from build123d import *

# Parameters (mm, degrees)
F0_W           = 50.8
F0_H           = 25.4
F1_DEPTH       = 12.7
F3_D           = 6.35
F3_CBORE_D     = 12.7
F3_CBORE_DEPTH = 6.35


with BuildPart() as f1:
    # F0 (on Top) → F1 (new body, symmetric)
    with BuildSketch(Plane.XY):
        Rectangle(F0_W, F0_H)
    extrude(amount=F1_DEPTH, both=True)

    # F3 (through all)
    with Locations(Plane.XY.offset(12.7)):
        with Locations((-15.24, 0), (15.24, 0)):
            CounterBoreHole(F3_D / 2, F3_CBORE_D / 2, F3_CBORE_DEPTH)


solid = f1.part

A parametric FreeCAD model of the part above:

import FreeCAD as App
import Part
import Sketcher

V = App.Vector
Q = App.Units.Quantity

doc = App.newDocument("Part")
params = doc.addObject("Spreadsheet::Sheet", "Params")
for row, (alias, value) in enumerate([
    ("sketch1_width", "2 in"),
    ("sketch1_height", "1 in"),
    ("pad1_length", "1 in"),
    ("sketch2_diameter", "0.25 in"),
    ("hole_diameter", "0.25 in"),
    ("hole_cbore_diameter", "0.5 in"),
    ("hole_cbore_depth", "0.25 in"),
], start=1):
    params.set(f"A{row}", alias)
    params.set(f"B{row}", "=" + value)
    params.setAlias(f"B{row}", alias)

body = doc.addObject("PartDesign::Body", "Body")

# Sketch on XY plane
sketch1 = body.newObject("Sketcher::SketchObject", "Sketch")
sketch1.AttachmentSupport = (doc.getObject("XY_Plane"), [""])
sketch1.MapMode = "FlatFace"
sketch1.addGeometry(Part.LineSegment(V(-25.4, 12.7, 0), V(-25.4, -12.7, 0)), False)
sketch1.addGeometry(Part.LineSegment(V(-25.4, -12.7, 0), V(25.4, -12.7, 0)), False)
sketch1.addGeometry(Part.LineSegment(V(25.4, -12.7, 0), V(25.4, 12.7, 0)), False)
sketch1.addGeometry(Part.LineSegment(V(25.4, 12.7, 0), V(-25.4, 12.7, 0)), False)
sketch1.addConstraint(Sketcher.Constraint("Coincident", 0, 2, 1, 1))
sketch1.addConstraint(Sketcher.Constraint("Coincident", 1, 2, 2, 1))
sketch1.addConstraint(Sketcher.Constraint("Coincident", 2, 2, 3, 1))
sketch1.addConstraint(Sketcher.Constraint("Coincident", 3, 2, 0, 1))
sketch1.addConstraint(Sketcher.Constraint("Vertical", 0))
sketch1.addConstraint(Sketcher.Constraint("Horizontal", 1))
sketch1.addConstraint(Sketcher.Constraint("Vertical", 2))
sketch1.addConstraint(Sketcher.Constraint("Horizontal", 3))
sketch1.addConstraint(Sketcher.Constraint("Symmetric", 0, 2, 2, 2, -1, 1))
sketch1.addConstraint(Sketcher.Constraint("DistanceX", 1, 1, 1, 2, Q("2 in")))
sketch1.addConstraint(Sketcher.Constraint("DistanceY", 0, 2, 0, 1, Q("1 in")))
sketch1.setExpression("Constraints[9]", "Params.sketch1_width")
sketch1.setExpression("Constraints[10]", "Params.sketch1_height")
pad1 = body.newObject("PartDesign::Pad", "Pad")
pad1.Profile = sketch1
pad1.setExpression("Length", "Params.pad1_length")
pad1.Midplane = True

# Sketch on XY plane
sketch2 = body.newObject("Sketcher::SketchObject", "Sketch001")
sketch2.AttachmentSupport = (doc.getObject("XY_Plane"), [""])
sketch2.MapMode = "FlatFace"
sketch2.AttachmentOffset = App.Placement(V(0, 0, 0.5 * 25.4), App.Rotation())
sketch2.addGeometry(Part.Circle(V(-15.24, 0, 0), V(0, 0, 1), 3.175), False)
sketch2.addGeometry(Part.Circle(V(15.24, 0, 0), V(0, 0, 1), 3.175), False)
sketch2.addConstraint(Sketcher.Constraint("Equal", 0, 1))
sketch2.addConstraint(Sketcher.Constraint("Symmetric", 0, 3, 1, 3, -1, 1))
sketch2.addConstraint(Sketcher.Constraint("PointOnObject", 0, 3, -1))
sketch2.addConstraint(Sketcher.Constraint("Diameter", 0, Q("0.25 in")))
sketch2.addConstraint(Sketcher.Constraint("DistanceX", 0, 3, -1, 1, Q("0.6 in")))
sketch2.setExpression("Constraints[3]", "Params.sketch2_diameter")
doc.recompute()
hole = body.newObject("PartDesign::Hole", "Hole")
hole.Profile = sketch2
hole.ThreadType = "None"
hole.setExpression("Diameter", "Params.hole_diameter")
hole.DepthType = "ThroughAll"
hole.HoleCutType = "Counterbore"
hole.setExpression("HoleCutDiameter", "Params.hole_cbore_diameter")
hole.setExpression("HoleCutDepth", "Params.hole_cbore_depth")

doc.recompute()
